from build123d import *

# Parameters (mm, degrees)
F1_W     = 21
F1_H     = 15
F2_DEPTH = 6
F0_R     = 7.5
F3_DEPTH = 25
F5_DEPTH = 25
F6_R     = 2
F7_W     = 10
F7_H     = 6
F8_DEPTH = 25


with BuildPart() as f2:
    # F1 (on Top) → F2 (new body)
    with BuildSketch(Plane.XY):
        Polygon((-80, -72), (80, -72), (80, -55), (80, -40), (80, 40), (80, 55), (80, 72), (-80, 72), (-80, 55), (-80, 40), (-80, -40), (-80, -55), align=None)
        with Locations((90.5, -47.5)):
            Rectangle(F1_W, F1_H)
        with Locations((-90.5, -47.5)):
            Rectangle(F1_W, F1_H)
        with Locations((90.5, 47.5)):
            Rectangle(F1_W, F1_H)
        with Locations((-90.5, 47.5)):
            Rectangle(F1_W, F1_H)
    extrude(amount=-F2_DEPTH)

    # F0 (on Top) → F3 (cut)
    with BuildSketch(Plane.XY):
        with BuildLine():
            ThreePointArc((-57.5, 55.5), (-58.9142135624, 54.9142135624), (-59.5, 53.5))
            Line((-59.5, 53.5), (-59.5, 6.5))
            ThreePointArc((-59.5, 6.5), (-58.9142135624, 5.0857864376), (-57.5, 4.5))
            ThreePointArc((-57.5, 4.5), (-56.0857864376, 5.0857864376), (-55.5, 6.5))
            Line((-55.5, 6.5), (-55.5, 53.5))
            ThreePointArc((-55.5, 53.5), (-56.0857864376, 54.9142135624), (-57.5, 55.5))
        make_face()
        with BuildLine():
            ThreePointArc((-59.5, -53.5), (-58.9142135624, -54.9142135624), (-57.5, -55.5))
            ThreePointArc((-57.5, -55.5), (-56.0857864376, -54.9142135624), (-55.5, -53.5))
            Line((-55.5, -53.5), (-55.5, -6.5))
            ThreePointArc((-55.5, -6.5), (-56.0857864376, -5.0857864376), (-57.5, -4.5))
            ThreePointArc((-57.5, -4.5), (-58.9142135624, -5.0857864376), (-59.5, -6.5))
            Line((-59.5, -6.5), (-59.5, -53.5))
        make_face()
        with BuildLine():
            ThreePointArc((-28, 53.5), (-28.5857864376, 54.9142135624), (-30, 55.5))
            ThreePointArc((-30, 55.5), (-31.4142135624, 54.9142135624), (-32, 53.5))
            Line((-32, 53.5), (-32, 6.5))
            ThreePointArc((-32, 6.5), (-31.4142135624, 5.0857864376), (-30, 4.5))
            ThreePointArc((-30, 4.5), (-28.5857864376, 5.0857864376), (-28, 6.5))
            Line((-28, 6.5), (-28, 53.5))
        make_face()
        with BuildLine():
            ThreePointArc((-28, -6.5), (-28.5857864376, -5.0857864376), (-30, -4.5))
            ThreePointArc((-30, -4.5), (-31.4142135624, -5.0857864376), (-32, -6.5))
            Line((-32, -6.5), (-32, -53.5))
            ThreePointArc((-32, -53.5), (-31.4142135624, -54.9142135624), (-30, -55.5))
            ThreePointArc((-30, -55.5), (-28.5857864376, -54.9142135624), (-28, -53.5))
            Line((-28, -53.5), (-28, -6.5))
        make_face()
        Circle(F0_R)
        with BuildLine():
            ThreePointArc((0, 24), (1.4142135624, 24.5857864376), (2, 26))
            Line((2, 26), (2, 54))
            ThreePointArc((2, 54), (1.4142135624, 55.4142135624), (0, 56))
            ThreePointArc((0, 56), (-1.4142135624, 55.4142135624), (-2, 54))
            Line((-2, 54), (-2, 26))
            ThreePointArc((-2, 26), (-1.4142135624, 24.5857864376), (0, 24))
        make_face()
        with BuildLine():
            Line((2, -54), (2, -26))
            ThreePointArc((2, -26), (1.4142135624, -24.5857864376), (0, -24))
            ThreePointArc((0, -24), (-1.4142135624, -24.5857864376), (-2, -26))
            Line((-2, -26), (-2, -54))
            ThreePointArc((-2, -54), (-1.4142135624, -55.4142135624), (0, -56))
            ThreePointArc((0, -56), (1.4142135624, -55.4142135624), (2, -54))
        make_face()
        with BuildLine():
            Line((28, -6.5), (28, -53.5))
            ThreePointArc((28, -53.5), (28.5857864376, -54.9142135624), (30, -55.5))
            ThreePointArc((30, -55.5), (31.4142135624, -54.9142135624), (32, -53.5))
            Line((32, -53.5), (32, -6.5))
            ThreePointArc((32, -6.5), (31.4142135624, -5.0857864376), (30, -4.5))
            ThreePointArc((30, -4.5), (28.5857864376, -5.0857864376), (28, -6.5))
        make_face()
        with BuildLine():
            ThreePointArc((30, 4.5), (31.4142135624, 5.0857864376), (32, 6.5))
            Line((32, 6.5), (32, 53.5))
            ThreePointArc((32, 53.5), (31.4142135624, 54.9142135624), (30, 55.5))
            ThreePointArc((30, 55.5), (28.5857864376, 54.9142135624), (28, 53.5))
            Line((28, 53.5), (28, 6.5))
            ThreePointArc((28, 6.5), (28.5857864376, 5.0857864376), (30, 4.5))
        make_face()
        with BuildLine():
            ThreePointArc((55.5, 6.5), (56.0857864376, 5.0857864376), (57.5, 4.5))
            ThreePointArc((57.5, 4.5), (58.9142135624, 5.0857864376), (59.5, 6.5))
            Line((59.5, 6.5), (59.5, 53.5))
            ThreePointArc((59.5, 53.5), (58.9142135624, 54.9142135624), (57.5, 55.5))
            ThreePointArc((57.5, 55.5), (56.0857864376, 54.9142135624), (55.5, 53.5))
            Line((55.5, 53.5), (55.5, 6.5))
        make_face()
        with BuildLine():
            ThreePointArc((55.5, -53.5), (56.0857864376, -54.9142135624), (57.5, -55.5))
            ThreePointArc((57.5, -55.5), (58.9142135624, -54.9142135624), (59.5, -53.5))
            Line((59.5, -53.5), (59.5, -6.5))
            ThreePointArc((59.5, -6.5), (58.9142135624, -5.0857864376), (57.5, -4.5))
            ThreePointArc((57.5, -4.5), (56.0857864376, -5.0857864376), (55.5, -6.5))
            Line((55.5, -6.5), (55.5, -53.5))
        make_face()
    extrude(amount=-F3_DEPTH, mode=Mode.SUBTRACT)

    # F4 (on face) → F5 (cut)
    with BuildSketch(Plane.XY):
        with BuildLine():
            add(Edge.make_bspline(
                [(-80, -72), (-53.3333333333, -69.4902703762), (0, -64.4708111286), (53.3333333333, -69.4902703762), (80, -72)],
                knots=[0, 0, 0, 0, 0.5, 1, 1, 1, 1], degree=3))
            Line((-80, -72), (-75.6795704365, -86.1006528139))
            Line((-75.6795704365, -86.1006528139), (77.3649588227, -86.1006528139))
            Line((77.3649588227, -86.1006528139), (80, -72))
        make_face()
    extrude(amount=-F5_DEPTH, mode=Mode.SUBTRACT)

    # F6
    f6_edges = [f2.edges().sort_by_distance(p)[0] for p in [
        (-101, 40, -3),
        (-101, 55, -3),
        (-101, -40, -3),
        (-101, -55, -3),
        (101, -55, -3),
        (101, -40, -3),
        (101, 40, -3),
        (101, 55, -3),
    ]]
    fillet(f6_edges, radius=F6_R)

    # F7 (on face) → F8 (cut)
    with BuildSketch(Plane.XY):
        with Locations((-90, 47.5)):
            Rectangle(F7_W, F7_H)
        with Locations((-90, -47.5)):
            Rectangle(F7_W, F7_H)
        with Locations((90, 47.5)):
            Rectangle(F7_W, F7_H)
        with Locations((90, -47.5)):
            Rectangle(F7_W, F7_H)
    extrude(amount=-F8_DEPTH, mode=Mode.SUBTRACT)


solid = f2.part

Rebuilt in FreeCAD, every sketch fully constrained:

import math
import FreeCAD as App
import Part
import Sketcher
from FreeCAD import Vector
Q = App.Units.Quantity


def edges_at(feature, points):
    """Names of the edges that pass closest to the given points."""
    edges = feature.Shape.Edges
    near = lambda p: min(range(len(edges)), key=lambda i: edges[i].distToShape(Part.Vertex(*p))[0])
    return sorted({f"Edge{near(p) + 1}" for p in points})

doc = App.newDocument("Part")
params = doc.addObject("Spreadsheet::Sheet", "Params")
for row, (alias, value) in enumerate([
    ("sketch1_width", "160 mm"),
    ("sketch1_width2", "21 mm"),
    ("sketch1_height", "17 mm"),
    ("sketch1_height2", "15 mm"),
    ("sketch1_height3", "80 mm"),
    ("pad1_length", "6 mm"),
    ("sketch2_diameter", "15 mm"),
    ("sketch2_radius", "2 mm"),
    ("sketch2_height", "47 mm"),
    ("sketch2_height2", "28 mm"),
    ("pocket1_length", "25 mm"),
    ("pocket2_length", "25 mm"),
    ("fillet_radius", "2 mm"),
    ("sketch4_width", "10 mm"),
    ("sketch4_height", "6 mm"),
    ("pocket3_length", "25 mm"),
], start=1):
    params.set(f"A{row}", alias)
    params.set(f"B{row}", "=" + value)
    params.setAlias(f"B{row}", alias)

body = doc.addObject("PartDesign::Body", "Body")

# Sketch on XY plane
sketch1 = body.newObject("Sketcher::SketchObject", "Sketch")
sketch1.AttachmentSupport = (doc.getObject("XY_Plane"), [""])
sketch1.MapMode = "FlatFace"
sketch1.addGeometry(Part.LineSegment(Vector(-80, -72, 0), Vector(80, -72, 0)), False)
sketch1.addGeometry(Part.LineSegment(Vector(80, -72, 0), Vector(80, -55, 0)), False)
sketch1.addGeometry(Part.LineSegment(Vector(80, -55, 0), Vector(101, -55, 0)), False)
sketch1.addGeometry(Part.LineSegment(Vector(101, -55, 0), Vector(101, -40, 0)), False)
sketch1.addGeometry(Part.LineSegment(Vector(101, -40, 0), Vector(80, -40, 0)), False)
sketch1.addGeometry(Part.LineSegment(Vector(80, -40, 0), Vector(80, 40, 0)), False)
sketch1.addGeometry(Part.LineSegment(Vector(80, 40, 0), Vector(101, 40, 0)), False)
sketch1.addGeometry(Part.LineSegment(Vector(101, 40, 0), Vector(101, 55, 0)), False)
sketch1.addGeometry(Part.LineSegment(Vector(101, 55, 0), Vector(80, 55, 0)), False)
sketch1.addGeometry(Part.LineSegment(Vector(80, 55, 0), Vector(80, 72, 0)), False)
sketch1.addGeometry(Part.LineSegment(Vector(80, 72, 0), Vector(-80, 72, 0)), False)
sketch1.addGeometry(Part.LineSegment(Vector(-80, 72, 0), Vector(-80, 55, 0)), False)
sketch1.addGeometry(Part.LineSegment(Vector(-80, 55, 0), Vector(-101, 55, 0)), False)
sketch1.addGeometry(Part.LineSegment(Vector(-101, 55, 0), Vector(-101, 40, 0)), False)
sketch1.addGeometry(Part.LineSegment(Vector(-101, 40, 0), Vector(-80, 40, 0)), False)
sketch1.addGeometry(Part.LineSegment(Vector(-80, 40, 0), Vector(-80, -40, 0)), False)
sketch1.addGeometry(Part.LineSegment(Vector(-80, -40, 0), Vector(-101, -40, 0)), False)
sketch1.addGeometry(Part.LineSegment(Vector(-101, -40, 0), Vector(-101, -55, 0)), False)
sketch1.addGeometry(Part.LineSegment(Vector(-101, -55, 0), Vector(-80, -55, 0)), False)
sketch1.addGeometry(Part.LineSegment(Vector(-80, -55, 0), Vector(-80, -72, 0)), False)
sketch1.addConstraint(Sketcher.Constraint("Coincident", 0, 2, 1, 1))
sketch1.addConstraint(Sketcher.Constraint("Coincident", 1, 2, 2, 1))
sketch1.addConstraint(Sketcher.Constraint("Coincident", 2, 2, 3, 1))
sketch1.addConstraint(Sketcher.Constraint("Coincident", 3, 2, 4, 1))
sketch1.addConstraint(Sketcher.Constraint("Coincident", 4, 2, 5, 1))
sketch1.addConstraint(Sketcher.Constraint("Coincident", 5, 2, 6, 1))
sketch1.addConstraint(Sketcher.Constraint("Coincident", 6, 2, 7, 1))
sketch1.addConstraint(Sketcher.Constraint("Coincident", 7, 2, 8, 1))
sketch1.addConstraint(Sketcher.Constraint("Coincident", 8, 2, 9, 1))
sketch1.addConstraint(Sketcher.Constraint("Coincident", 9, 2, 10, 1))
sketch1.addConstraint(Sketcher.Constraint("Coincident", 10, 2, 11, 1))
sketch1.addConstraint(Sketcher.Constraint("Coincident", 11, 2, 12, 1))
sketch1.addConstraint(Sketcher.Constraint("Coincident", 12, 2, 13, 1))
sketch1.addConstraint(Sketcher.Constraint("Coincident", 13, 2, 14, 1))
sketch1.addConstraint(Sketcher.Constraint("Coincident", 14, 2, 15, 1))
sketch1.addConstraint(Sketcher.Constraint("Coincident", 15, 2, 16, 1))
sketch1.addConstraint(Sketcher.Constraint("Coincident", 16, 2, 17, 1))
sketch1.addConstraint(Sketcher.Constraint("Coincident", 17, 2, 18, 1))
sketch1.addConstraint(Sketcher.Constraint("Coincident", 18, 2, 19, 1))
sketch1.addConstraint(Sketcher.Constraint("Coincident", 19, 2, 0, 1))
sketch1.addConstraint(Sketcher.Constraint("Horizontal", 0))
sketch1.addConstraint(Sketcher.Constraint("Vertical", 1))
sketch1.addConstraint(Sketcher.Constraint("Horizontal", 2))
sketch1.addConstraint(Sketcher.Constraint("Vertical", 3))
sketch1.addConstraint(Sketcher.Constraint("Horizontal", 4))
sketch1.addConstraint(Sketcher.Constraint("Vertical", 5))
sketch1.addConstraint(Sketcher.Constraint("Horizontal", 6))
sketch1.addConstraint(Sketcher.Constraint("Vertical", 7))
sketch1.addConstraint(Sketcher.Constraint("Horizontal", 8))
sketch1.addConstraint(Sketcher.Constraint("Vertical", 9))
sketch1.addConstraint(Sketcher.Constraint("Horizontal", 10))
sketch1.addConstraint(Sketcher.Constraint("Vertical", 11))
sketch1.addConstraint(Sketcher.Constraint("Horizontal", 12))
sketch1.addConstraint(Sketcher.Constraint("Vertical", 13))
sketch1.addConstraint(Sketcher.Constraint("Horizontal", 14))
sketch1.addConstraint(Sketcher.Constraint("Vertical", 15))
sketch1.addConstraint(Sketcher.Constraint("Horizontal", 16))
sketch1.addConstraint(Sketcher.Constraint("Vertical", 17))
sketch1.addConstraint(Sketcher.Constraint("Horizontal", 18))
sketch1.addConstraint(Sketcher.Constraint("Vertical", 19))
sketch1.addConstraint(Sketcher.Constraint("Symmetric", 0, 2, 10, 2, -1, 1))
sketch1.addConstraint(Sketcher.Constraint("Symmetric", 2, 2, 12, 2, -1, 1))
sketch1.addConstraint(Sketcher.Constraint("Symmetric", 4, 2, 14, 2, -1, 1))
sketch1.addConstraint(Sketcher.Constraint("Symmetric", 6, 2, 16, 2, -1, 1))
sketch1.addConstraint(Sketcher.Constraint("Symmetric", 8, 2, 18, 2, -1, 1))
sketch1.addConstraint(Sketcher.Constraint("Symmetric", 8, 2, 11, 2, -2))
sketch1.addConstraint(Sketcher.Constraint("Symmetric", 6, 2, 13, 2, -2))
sketch1.addConstraint(Sketcher.Constraint("Vertical", 1, 2, 4, 2))
sketch1.addConstraint(Sketcher.Constraint("DistanceX", 0, 1, 0, 2, Q("160 mm")))
sketch1.addConstraint(Sketcher.Constraint("DistanceX", 2, 1, 2, 2, Q("21 mm")))
sketch1.addConstraint(Sketcher.Constraint("DistanceY", 1, 1, 1, 2, Q("17 mm")))
sketch1.addConstraint(Sketcher.Constraint("DistanceY", 3, 1, 3, 2, Q("15 mm")))
sketch1.addConstraint(Sketcher.Constraint("DistanceY", 5, 1, 5, 2, Q("80 mm")))
sketch1.setExpression("Constraints[48]", "Params.sketch1_width")
sketch1.setExpression("Constraints[49]", "Params.sketch1_width2")
sketch1.setExpression("Constraints[50]", "Params.sketch1_height")
sketch1.setExpression("Constraints[51]", "Params.sketch1_height2")
sketch1.setExpression("Constraints[52]", "Params.sketch1_height3")
pad1 = body.newObject("PartDesign::Pad", "Pad")
pad1.Profile = sketch1
pad1.setExpression("Length", "Params.pad1_length")
pad1.Reversed = True

# Sketch on XY plane
sketch2 = body.newObject("Sketcher::SketchObject", "Sketch001")
sketch2.AttachmentSupport = (doc.getObject("XY_Plane"), [""])
sketch2.MapMode = "FlatFace"
sketch2.addGeometry(Part.ArcOfCircle(Part.Circle(Vector(-57.5, 53.5, 0), Vector(0, 0, 1), 2), math.radians(90), math.radians(180)), False)
sketch2.addGeometry(Part.LineSegment(Vector(-59.5, 53.5, 0), Vector(-59.5, 6.5, 0)), False)
sketch2.addGeometry(Part.ArcOfCircle(Part.Circle(Vector(-57.5, 6.5, 0), Vector(0, 0, 1), 2), math.radians(180), math.radians(270)), False)
sketch2.addGeometry(Part.ArcOfCircle(Part.Circle(Vector(-57.5, 6.5, 0), Vector(0, 0, 1), 2), math.radians(-90), math.radians(0)), False)
sketch2.addGeometry(Part.LineSegment(Vector(-55.5, 6.5, 0), Vector(-55.5, 53.5, 0)), False)
sketch2.addGeometry(Part.ArcOfCircle(Part.Circle(Vector(-57.5, 53.5, 0), Vector(0, 0, 1), 2), math.radians(0), math.radians(90)), False)
sketch2.addGeometry(Part.ArcOfCircle(Part.Circle(Vector(-57.5, -53.5, 0), Vector(0, 0, 1), 2), math.radians(180), math.radians(270)), False)
sketch2.addGeometry(Part.ArcOfCircle(Part.Circle(Vector(-57.5, -53.5, 0), Vector(0, 0, 1), 2), math.radians(-90), math.radians(0)), False)
sketch2.addGeometry(Part.LineSegment(Vector(-55.5, -53.5, 0), Vector(-55.5, -6.5, 0)), False)
sketch2.addGeometry(Part.ArcOfCircle(Part.Circle(Vector(-57.5, -6.5, 0), Vector(0, 0, 1), 2), math.radians(0), math.radians(90)), False)
sketch2.addGeometry(Part.ArcOfCircle(Part.Circle(Vector(-57.5, -6.5, 0), Vector(0, 0, 1), 2), math.radians(90), math.radians(180)), False)
sketch2.addGeometry(Part.LineSegment(Vector(-59.5, -6.5, 0), Vector(-59.5, -53.5, 0)), False)
sketch2.addGeometry(Part.ArcOfCircle(Part.Circle(Vector(-30, 53.5, 0), Vector(0, 0, 1), 2), math.radians(0), math.radians(90)), False)
sketch2.addGeometry(Part.ArcOfCircle(Part.Circle(Vector(-30, 53.5, 0), Vector(0, 0, 1), 2), math.radians(90), math.radians(180)), False)
sketch2.addGeometry(Part.LineSegment(Vector(-32, 53.5, 0), Vector(-32, 6.5, 0)), False)
sketch2.addGeometry(Part.ArcOfCircle(Part.Circle(Vector(-30, 6.5, 0), Vector(0, 0, 1), 2), math.radians(180), math.radians(270)), False)
sketch2.addGeometry(Part.ArcOfCircle(Part.Circle(Vector(-30, 6.5, 0), Vector(0, 0, 1), 2), math.radians(-90), math.radians(0)), False)
sketch2.addGeometry(Part.LineSegment(Vector(-28, 6.5, 0), Vector(-28, 53.5, 0)), False)
sketch2.addGeometry(Part.ArcOfCircle(Part.Circle(Vector(-30, -6.5, 0), Vector(0, 0, 1), 2), math.radians(0), math.radians(90)), False)
sketch2.addGeometry(Part.ArcOfCircle(Part.Circle(Vector(-30, -6.5, 0), Vector(0, 0, 1), 2), math.radians(90), math.radians(180)), False)
sketch2.addGeometry(Part.LineSegment(Vector(-32, -6.5, 0), Vector(-32, -53.5, 0)), False)
sketch2.addGeometry(Part.ArcOfCircle(Part.Circle(Vector(-30, -53.5, 0), Vector(0, 0, 1), 2), math.radians(180), math.radians(270)), False)
sketch2.addGeometry(Part.ArcOfCircle(Part.Circle(Vector(-30, -53.5, 0), Vector(0, 0, 1), 2), math.radians(-90), math.radians(0)), False)
sketch2.addGeometry(Part.LineSegment(Vector(-28, -53.5, 0), Vector(-28, -6.5, 0)), False)
sketch2.addGeometry(Part.Circle(Vector(0, 0, 0), Vector(0, 0, 1), 7.5), False)
sketch2.addGeometry(Part.ArcOfCircle(Part.Circle(Vector(0, 26, 0), Vector(0, 0, 1), 2), math.radians(-90), math.radians(0)), False)
sketch2.addGeometry(Part.LineSegment(Vector(2, 26, 0), Vector(2, 54, 0)), False)
sketch2.addGeometry(Part.ArcOfCircle(Part.Circle(Vector(0, 54, 0), Vector(0, 0, 1), 2), math.radians(0), math.radians(90)), False)
sketch2.addGeometry(Part.ArcOfCircle(Part.Circle(Vector(0, 54, 0), Vector(0, 0, 1), 2), math.radians(90), math.radians(180)), False)
sketch2.addGeometry(Part.LineSegment(Vector(-2, 54, 0), Vector(-2, 26, 0)), False)
sketch2.addGeometry(Part.ArcOfCircle(Part.Circle(Vector(0, 26, 0), Vector(0, 0, 1), 2), math.radians(180), math.radians(270)), False)
sketch2.addGeometry(Part.LineSegment(Vector(2, -54, 0), Vector(2, -26, 0)), False)
sketch2.addGeometry(Part.ArcOfCircle(Part.Circle(Vector(0, -26, 0), Vector(0, 0, 1), 2), math.radians(0), math.radians(90)), False)
sketch2.addGeometry(Part.ArcOfCircle(Part.Circle(Vector(0, -26, 0), Vector(0, 0, 1), 2), math.radians(90), math.radians(180)), False)
sketch2.addGeometry(Part.LineSegment(Vector(-2, -26, 0), Vector(-2, -54, 0)), False)
sketch2.addGeometry(Part.ArcOfCircle(Part.Circle(Vector(0, -54, 0), Vector(0, 0, 1), 2), math.radians(180), math.radians(270)), False)
sketch2.addGeometry(Part.ArcOfCircle(Part.Circle(Vector(0, -54, 0), Vector(0, 0, 1), 2), math.radians(-90), math.radians(0)), False)
sketch2.addGeometry(Part.LineSegment(Vector(28, -6.5, 0), Vector(28, -53.5, 0)), False)
sketch2.addGeometry(Part.ArcOfCircle(Part.Circle(Vector(30, -53.5, 0), Vector(0, 0, 1), 2), math.radians(180), math.radians(270)), False)
sketch2.addGeometry(Part.ArcOfCircle(Part.Circle(Vector(30, -53.5, 0), Vector(0, 0, 1), 2), math.radians(-90), math.radians(0)), False)
sketch2.addGeometry(Part.LineSegment(Vector(32, -53.5, 0), Vector(32, -6.5, 0)), False)
sketch2.addGeometry(Part.ArcOfCircle(Part.Circle(Vector(30, -6.5, 0), Vector(0, 0, 1), 2), math.radians(0), math.radians(90)), False)
sketch2.addGeometry(Part.ArcOfCircle(Part.Circle(Vector(30, -6.5, 0), Vector(0, 0, 1), 2), math.radians(90), math.radians(180)), False)
sketch2.addGeometry(Part.ArcOfCircle(Part.Circle(Vector(30, 6.5, 0), Vector(0, 0, 1), 2), math.radians(-90), math.radians(0)), False)
sketch2.addGeometry(Part.LineSegment(Vector(32, 6.5, 0), Vector(32, 53.5, 0)), False)
sketch2.addGeometry(Part.ArcOfCircle(Part.Circle(Vector(30, 53.5, 0), Vector(0, 0, 1), 2), math.radians(0), math.radians(90)), False)
sketch2.addGeometry(Part.ArcOfCircle(Part.Circle(Vector(30, 53.5, 0), Vector(0, 0, 1), 2), math.radians(90), math.radians(180)), False)
sketch2.addGeometry(Part.LineSegment(Vector(28, 53.5, 0), Vector(28, 6.5, 0)), False)
sketch2.addGeometry(Part.ArcOfCircle(Part.Circle(Vector(30, 6.5, 0), Vector(0, 0, 1), 2), math.radians(180), math.radians(270)), False)
sketch2.addGeometry(Part.ArcOfCircle(Part.Circle(Vector(57.5, 6.5, 0), Vector(0, 0, 1), 2), math.radians(180), math.radians(270)), False)
sketch2.addGeometry(Part.ArcOfCircle(Part.Circle(Vector(57.5, 6.5, 0), Vector(0, 0, 1), 2), math.radians(-90), math.radians(0)), False)
sketch2.addGeometry(Part.LineSegment(Vector(59.5, 6.5, 0), Vector(59.5, 53.5, 0)), False)
sketch2.addGeometry(Part.ArcOfCircle(Part.Circle(Vector(57.5, 53.5, 0), Vector(0, 0, 1), 2), math.radians(0), math.radians(90)), False)
sketch2.addGeometry(Part.ArcOfCircle(Part.Circle(Vector(57.5, 53.5, 0), Vector(0, 0, 1), 2), math.radians(90), math.radians(180)), False)
sketch2.addGeometry(Part.LineSegment(Vector(55.5, 53.5, 0), Vector(55.5, 6.5, 0)), False)
sketch2.addGeometry(Part.ArcOfCircle(Part.Circle(Vector(57.5, -53.5, 0), Vector(0, 0, 1), 2), math.radians(180), math.radians(270)), False)
sketch2.addGeometry(Part.ArcOfCircle(Part.Circle(Vector(57.5, -53.5, 0), Vector(0, 0, 1), 2), math.radians(-90), math.radians(0)), False)
sketch2.addGeometry(Part.LineSegment(Vector(59.5, -53.5, 0), Vector(59.5, -6.5, 0)), False)
sketch2.addGeometry(Part.ArcOfCircle(Part.Circle(Vector(57.5, -6.5, 0), Vector(0, 0, 1), 2), math.radians(0), math.radians(90)), False)
sketch2.addGeometry(Part.ArcOfCircle(Part.Circle(Vector(57.5, -6.5, 0), Vector(0, 0, 1), 2), math.radians(90), math.radians(180)), False)
sketch2.addGeometry(Part.LineSegment(Vector(55.5, -6.5, 0), Vector(55.5, -53.5, 0)), False)
sketch2.addConstraint(Sketcher.Constraint("Tangent", 0, 2, 1, 1))
sketch2.addConstraint(Sketcher.Constraint("Tangent", 1, 2, 2, 1))
sketch2.addConstraint(Sketcher.Constraint("Tangent", 2, 2, 3, 1))
sketch2.addConstraint(Sketcher.Constraint("Tangent", 3, 2, 4, 1))
sketch2.addConstraint(Sketcher.Constraint("Tangent", 4, 2, 5, 1))
sketch2.addConstraint(Sketcher.Constraint("Tangent", 5, 2, 0, 1))
sketch2.addConstraint(Sketcher.Constraint("Tangent", 6, 2, 7, 1))
sketch2.addConstraint(Sketcher.Constraint("Tangent", 7, 2, 8, 1))
sketch2.addConstraint(Sketcher.Constraint("Tangent", 8, 2, 9, 1))
sketch2.addConstraint(Sketcher.Constraint("Tangent", 9, 2, 10, 1))
sketch2.addConstraint(Sketcher.Constraint("Tangent", 10, 2, 11, 1))
sketch2.addConstraint(Sketcher.Constraint("Tangent", 11, 2, 6, 1))
sketch2.addConstraint(Sketcher.Constraint("Tangent", 12, 2, 13, 1))
sketch2.addConstraint(Sketcher.Constraint("Tangent", 13, 2, 14, 1))
sketch2.addConstraint(Sketcher.Constraint("Tangent", 14, 2, 15, 1))
sketch2.addConstraint(Sketcher.Constraint("Tangent", 15, 2, 16, 1))
sketch2.addConstraint(Sketcher.Constraint("Tangent", 16, 2, 17, 1))
sketch2.addConstraint(Sketcher.Constraint("Tangent", 17, 2, 12, 1))
sketch2.addConstraint(Sketcher.Constraint("Tangent", 18, 2, 19, 1))
sketch2.addConstraint(Sketcher.Constraint("Tangent", 19, 2, 20, 1))
sketch2.addConstraint(Sketcher.Constraint("Tangent", 20, 2, 21, 1))
sketch2.addConstraint(Sketcher.Constraint("Tangent", 21, 2, 22, 1))
sketch2.addConstraint(Sketcher.Constraint("Tangent", 22, 2, 23, 1))
sketch2.addConstraint(Sketcher.Constraint("Tangent", 23, 2, 18, 1))
sketch2.addConstraint(Sketcher.Constraint("Tangent", 25, 2, 26, 1))
sketch2.addConstraint(Sketcher.Constraint("Tangent", 26, 2, 27, 1))
sketch2.addConstraint(Sketcher.Constraint("Tangent", 27, 2, 28, 1))
sketch2.addConstraint(Sketcher.Constraint("Tangent", 28, 2, 29, 1))
sketch2.addConstraint(Sketcher.Constraint("Tangent", 29, 2, 30, 1))
sketch2.addConstraint(Sketcher.Constraint("Tangent", 30, 2, 25, 1))
sketch2.addConstraint(Sketcher.Constraint("Tangent", 31, 2, 32, 1))
sketch2.addConstraint(Sketcher.Constraint("Tangent", 32, 2, 33, 1))
sketch2.addConstraint(Sketcher.Constraint("Tangent", 33, 2, 34, 1))
sketch2.addConstraint(Sketcher.Constraint("Tangent", 34, 2, 35, 1))
sketch2.addConstraint(Sketcher.Constraint("Tangent", 35, 2, 36, 1))
sketch2.addConstraint(Sketcher.Constraint("Tangent", 36, 2, 31, 1))
sketch2.addConstraint(Sketcher.Constraint("Tangent", 37, 2, 38, 1))
sketch2.addConstraint(Sketcher.Constraint("Tangent", 38, 2, 39, 1))
sketch2.addConstraint(Sketcher.Constraint("Tangent", 39, 2, 40, 1))
sketch2.addConstraint(Sketcher.Constraint("Tangent", 40, 2, 41, 1))
sketch2.addConstraint(Sketcher.Constraint("Tangent", 41, 2, 42, 1))
sketch2.addConstraint(Sketcher.Constraint("Tangent", 42, 2, 37, 1))
sketch2.addConstraint(Sketcher.Constraint("Tangent", 43, 2, 44, 1))
sketch2.addConstraint(Sketcher.Constraint("Tangent", 44, 2, 45, 1))
sketch2.addConstraint(Sketcher.Constraint("Tangent", 45, 2, 46, 1))
sketch2.addConstraint(Sketcher.Constraint("Tangent", 46, 2, 47, 1))
sketch2.addConstraint(Sketcher.Constraint("Tangent", 47, 2, 48, 1))
sketch2.addConstraint(Sketcher.Constraint("Tangent", 48, 2, 43, 1))
sketch2.addConstraint(Sketcher.Constraint("Tangent", 49, 2, 50, 1))
sketch2.addConstraint(Sketcher.Constraint("Tangent", 50, 2, 51, 1))
sketch2.addConstraint(Sketcher.Constraint("Tangent", 51, 2, 52, 1))
sketch2.addConstraint(Sketcher.Constraint("Tangent", 52, 2, 53, 1))
sketch2.addConstraint(Sketcher.Constraint("Tangent", 53, 2, 54, 1))
sketch2.addConstraint(Sketcher.Constraint("Tangent", 54, 2, 49, 1))
sketch2.addConstraint(Sketcher.Constraint("Tangent", 55, 2, 56, 1))
sketch2.addConstraint(Sketcher.Constraint("Tangent", 56, 2, 57, 1))
sketch2.addConstraint(Sketcher.Constraint("Tangent", 57, 2, 58, 1))
sketch2.addConstraint(Sketcher.Constraint("Tangent", 58, 2, 59, 1))
sketch2.addConstraint(Sketcher.Constraint("Tangent", 59, 2, 60, 1))
sketch2.addConstraint(Sketcher.Constraint("Tangent", 60, 2, 55, 1))
sketch2.addConstraint(Sketcher.Constraint("Vertical", 1))
sketch2.addConstraint(Sketcher.Constraint("Vertical", 4))
sketch2.addConstraint(Sketcher.Constraint("Vertical", 8))
sketch2.addConstraint(Sketcher.Constraint("Vertical", 11))
sketch2.addConstraint(Sketcher.Constraint("Vertical", 14))
sketch2.addConstraint(Sketcher.Constraint("Vertical", 17))
sketch2.addConstraint(Sketcher.Constraint("Vertical", 20))
sketch2.addConstraint(Sketcher.Constraint("Vertical", 23))
sketch2.addConstraint(Sketcher.Constraint("Vertical", 26))
sketch2.addConstraint(Sketcher.Constraint("Vertical", 29))
sketch2.addConstraint(Sketcher.Constraint("Vertical", 31))
sketch2.addConstraint(Sketcher.Constraint("Vertical", 34))
sketch2.addConstraint(Sketcher.Constraint("Vertical", 37))
sketch2.addConstraint(Sketcher.Constraint("Vertical", 40))
sketch2.addConstraint(Sketcher.Constraint("Vertical", 44))
sketch2.addConstraint(Sketcher.Constraint("Vertical", 47))
sketch2.addConstraint(Sketcher.Constraint("Vertical", 51))
sketch2.addConstraint(Sketcher.Constraint("Vertical", 54))
sketch2.addConstraint(Sketcher.Constraint("Vertical", 57))
sketch2.addConstraint(Sketcher.Constraint("Vertical", 60))
sketch2.addConstraint(Sketcher.Constraint("Coincident", 24, 3, -1, 1))
sketch2.addConstraint(Sketcher.Constraint("Equal", 0, 2))
sketch2.addConstraint(Sketcher.Constraint("Equal", 2, 3))
sketch2.addConstraint(Sketcher.Constraint("Equal", 5, 6))
sketch2.addConstraint(Sketcher.Constraint("Equal", 6, 7))
sketch2.addConstraint(Sketcher.Constraint("Equal", 7, 9))
sketch2.addConstraint(Sketcher.Constraint("Equal", 10, 12))
sketch2.addConstraint(Sketcher.Constraint("Equal", 12, 13))
sketch2.addConstraint(Sketcher.Constraint("Equal", 13, 15))
sketch2.addConstraint(Sketcher.Constraint("Equal", 16, 18))
sketch2.addConstraint(Sketcher.Constraint("Equal", 18, 19))
sketch2.addConstraint(Sketcher.Constraint("Equal", 19, 21))
sketch2.addConstraint(Sketcher.Constraint("Equal", 22, 25))
sketch2.addConstraint(Sketcher.Constraint("Equal", 25, 27))
sketch2.addConstraint(Sketcher.Constraint("Equal", 27, 28))
sketch2.addConstraint(Sketcher.Constraint("Equal", 30, 32))
sketch2.addConstraint(Sketcher.Constraint("Equal", 32, 33))
sketch2.addConstraint(Sketcher.Constraint("Equal", 33, 35))
sketch2.addConstraint(Sketcher.Constraint("Equal", 36, 38))
sketch2.addConstraint(Sketcher.Constraint("Equal", 38, 39))
sketch2.addConstraint(Sketcher.Constraint("Equal", 39, 41))
sketch2.addConstraint(Sketcher.Constraint("Equal", 42, 43))
sketch2.addConstraint(Sketcher.Constraint("Equal", 43, 45))
sketch2.addConstraint(Sketcher.Constraint("Equal", 45, 46))
sketch2.addConstraint(Sketcher.Constraint("Equal", 48, 49))
sketch2.addConstraint(Sketcher.Constraint("Equal", 49, 50))
sketch2.addConstraint(Sketcher.Constraint("Equal", 50, 52))
sketch2.addConstraint(Sketcher.Constraint("Equal", 53, 55))
sketch2.addConstraint(Sketcher.Constraint("Equal", 55, 56))
sketch2.addConstraint(Sketcher.Constraint("Equal", 56, 58))
sketch2.addConstraint(Sketcher.Constraint("Symmetric", 25, 3, 32, 3, -1, 1))
sketch2.addConstraint(Sketcher.Constraint("Symmetric", 12, 3, 38, 3, -1, 1))
sketch2.addConstraint(Sketcher.Constraint("Symmetric", 18, 3, 43, 3, -1, 1))
sketch2.addConstraint(Sketcher.Constraint("Symmetric", 9, 3, 49, 3, -1, 1))
sketch2.addConstraint(Sketcher.Constraint("Symmetric", 0, 3, 55, 3, -1, 1))
sketch2.addConstraint(Sketcher.Constraint("Symmetric", 27, 2, 35, 2, -1, 1))
sketch2.addConstraint(Sketcher.Constraint("Symmetric", 15, 2, 41, 2, -1, 1))
sketch2.addConstraint(Sketcher.Constraint("Symmetric", 21, 2, 45, 2, -1, 1))
sketch2.addConstraint(Sketcher.Constraint("Symmetric", 6, 2, 52, 2, -1, 1))
sketch2.addConstraint(Sketcher.Constraint("Symmetric", 2, 2, 58, 2, -1, 1))
sketch2.addConstraint(Sketcher.Constraint("Symmetric", 21, 3, 38, 3, -2))
sketch2.addConstraint(Sketcher.Constraint("Symmetric", 2, 3, 49, 3, -2))
sketch2.addConstraint(Sketcher.Constraint("Symmetric", 18, 2, 41, 2, -2))
sketch2.addConstraint(Sketcher.Constraint("Symmetric", 5, 2, 52, 2, -2))
sketch2.addConstraint(Sketcher.Constraint("PointOnObject", 25, 3, -2))
sketch2.addConstraint(Sketcher.Constraint("PointOnObject", 27, 2, -2))
sketch2.addConstraint(Sketcher.Constraint("PointOnObject", 30, 2, -2))
sketch2.addConstraint(Sketcher.Constraint("PointOnObject", 32, 2, -2))
sketch2.addConstraint(Sketcher.Constraint("Horizontal", 5, 3, 12, 3))
sketch2.addConstraint(Sketcher.Constraint("Horizontal", 3, 3, 15, 3))
sketch2.addConstraint(Sketcher.Constraint("Vertical", 10, 3, 2, 2))
sketch2.addConstraint(Sketcher.Constraint("Vertical", 2, 2, 5, 2))
sketch2.addConstraint(Sketcher.Constraint("Vertical", 6, 2, 9, 2))
sketch2.addConstraint(Sketcher.Constraint("Vertical", 22, 3, 12, 2))
sketch2.addConstraint(Sketcher.Constraint("Vertical", 12, 2, 15, 2))
sketch2.addConstraint(Sketcher.Constraint("Vertical", 18, 2, 21, 2))
sketch2.addConstraint(Sketcher.Constraint("Vertical", 48, 3, 38, 2))
sketch2.addConstraint(Sketcher.Constraint("Vertical", 45, 2, 48, 2))
sketch2.addConstraint(Sketcher.Constraint("Vertical", 59, 3, 49, 2))
sketch2.addConstraint(Sketcher.Constraint("Vertical", 52, 2, 55, 2))
sketch2.addConstraint(Sketcher.Constraint("Diameter", 24, Q("15 mm")))
sketch2.addConstraint(Sketcher.Constraint("Radius", 0, Q("2 mm")))
sketch2.addConstraint(Sketcher.Constraint("DistanceY", 1, 2, 1, 1, Q("47 mm")))
sketch2.addConstraint(Sketcher.Constraint("DistanceY", 26, 1, 26, 2, Q("28 mm")))
sketch2.addConstraint(Sketcher.Constraint("DistanceX", 12, 3, -1, 1, Q("30 mm")))
sketch2.addConstraint(Sketcher.Constraint("DistanceY", -1, 1, 25, 3, Q("26 mm")))
sketch2.addConstraint(Sketcher.Constraint("DistanceX", 0, 3, -1, 1, Q("57.5 mm")))
sketch2.addConstraint(Sketcher.Constraint("DistanceY", -1, 1, 0, 3, Q("53.5 mm")))
sketch2.setExpression("Constraints[140]", "Params.sketch2_diameter")
sketch2.setExpression("Constraints[141]", "Params.sketch2_radius")
sketch2.setExpression("Constraints[142]", "Params.sketch2_height")
sketch2.setExpression("Constraints[143]", "Params.sketch2_height2")
pocket1 = body.newObject("PartDesign::Pocket", "Pocket")
pocket1.Profile = sketch2
pocket1.setExpression("Length", "Params.pocket1_length")

# Sketch on XY plane
sketch3 = body.newObject("Sketcher::SketchObject", "Sketch002")
sketch3.AttachmentSupport = (doc.getObject("XY_Plane"), [""])
sketch3.MapMode = "FlatFace"
sketch3.addGeometry(Part.BSplineCurve([Vector(-80, -72, 0), Vector(-53.333333, -69.49027, 0), Vector(0, -64.470811, 0), Vector(53.333333, -69.49027, 0), Vector(80, -72, 0)], [4, 1, 4], [0, 0.5, 1], False, 3, [1, 1, 1, 1, 1], False), False)
sketch3.addGeometry(Part.LineSegment(Vector(-80, -72, 0), Vector(-75.67957, -86.100653, 0)), False)
sketch3.addGeometry(Part.LineSegment(Vector(-75.67957, -86.100653, 0), Vector(77.364959, -86.100653, 0)), False)
sketch3.addGeometry(Part.LineSegment(Vector(77.364959, -86.100653, 0), Vector(80, -72, 0)), False)
sketch3.addConstraint(Sketcher.Constraint("Block", 0))
sketch3.addConstraint(Sketcher.Constraint("Coincident", 0, 1, 1, 1))
sketch3.addConstraint(Sketcher.Constraint("Coincident", 1, 2, 2, 1))
sketch3.addConstraint(Sketcher.Constraint("Coincident", 2, 2, 3, 1))
sketch3.addConstraint(Sketcher.Constraint("Coincident", 3, 2, 0, 2))
sketch3.addConstraint(Sketcher.Constraint("Horizontal", 2))
sketch3.addConstraint(Sketcher.Constraint("DistanceX", 2, 1, 2, 2, Q("153.044529 mm")))
sketch3.addConstraint(Sketcher.Constraint("Distance", 3, Q("14.34475 mm")))
sketch3.addConstraint(Sketcher.Constraint("DistanceX", 1, 2, -1, 1, Q("75.67957 mm")))
pocket2 = body.newObject("PartDesign::Pocket", "Pocket001")
pocket2.Profile = sketch3
pocket2.setExpression("Length", "Params.pocket2_length")
doc.recompute()

fillet = body.newObject("PartDesign::Fillet", "Fillet")
fillet.Base = (pocket2, edges_at(pocket2, [
    (-101, 40, -3),
    (-101, 55, -3),
    (-101, -40, -3),
    (-101, -55, -3),
    (101, -55, -3),
    (101, -40, -3),
    (101, 40, -3),
    (101, 55, -3),
]))
fillet.setExpression("Radius", "Params.fillet_radius")

# Sketch on XY plane
sketch4 = body.newObject("Sketcher::SketchObject", "Sketch003")
sketch4.AttachmentSupport = (doc.getObject("XY_Plane"), [""])
sketch4.MapMode = "FlatFace"
sketch4.addGeometry(Part.LineSegment(Vector(-95, 50, 0), Vector(-95, 44, 0)), False)
sketch4.addGeometry(Part.LineSegment(Vector(-95, 44, 0), Vector(-85, 44, 0)), False)
sketch4.addGeometry(Part.LineSegment(Vector(-85, 44, 0), Vector(-85, 50, 0)), False)
sketch4.addGeometry(Part.LineSegment(Vector(-85, 50, 0), Vector(-95, 50, 0)), False)
sketch4.addGeometry(Part.LineSegment(Vector(-95, -44, 0), Vector(-95, -50, 0)), False)
sketch4.addGeometry(Part.LineSegment(Vector(-95, -50, 0), Vector(-85, -50, 0)), False)
sketch4.addGeometry(Part.LineSegment(Vector(-85, -50, 0), Vector(-85, -44, 0)), False)
sketch4.addGeometry(Part.LineSegment(Vector(-85, -44, 0), Vector(-95, -44, 0)), False)
sketch4.addGeometry(Part.LineSegment(Vector(85, 50, 0), Vector(85, 44, 0)), False)
sketch4.addGeometry(Part.LineSegment(Vector(85, 44, 0), Vector(95, 44, 0)), False)
sketch4.addGeometry(Part.LineSegment(Vector(95, 44, 0), Vector(95, 50, 0)), False)
sketch4.addGeometry(Part.LineSegment(Vector(95, 50, 0), Vector(85, 50, 0)), False)
sketch4.addGeometry(Part.LineSegment(Vector(85, -44, 0), Vector(85, -50, 0)), False)
sketch4.addGeometry(Part.LineSegment(Vector(85, -50, 0), Vector(95, -50, 0)), False)
sketch4.addGeometry(Part.LineSegment(Vector(95, -50, 0), Vector(95, -44, 0)), False)
sketch4.addGeometry(Part.LineSegment(Vector(95, -44, 0), Vector(85, -44, 0)), False)
sketch4.addConstraint(Sketcher.Constraint("Coincident", 0, 2, 1, 1))
sketch4.addConstraint(Sketcher.Constraint("Coincident", 1, 2, 2, 1))
sketch4.addConstraint(Sketcher.Constraint("Coincident", 2, 2, 3, 1))
sketch4.addConstraint(Sketcher.Constraint("Coincident", 3, 2, 0, 1))
sketch4.addConstraint(Sketcher.Constraint("Coincident", 4, 2, 5, 1))
sketch4.addConstraint(Sketcher.Constraint("Coincident", 5, 2, 6, 1))
sketch4.addConstraint(Sketcher.Constraint("Coincident", 6, 2, 7, 1))
sketch4.addConstraint(Sketcher.Constraint("Coincident", 7, 2, 4, 1))
sketch4.addConstraint(Sketcher.Constraint("Coincident", 8, 2, 9, 1))
sketch4.addConstraint(Sketcher.Constraint("Coincident", 9, 2, 10, 1))
sketch4.addConstraint(Sketcher.Constraint("Coincident", 10, 2, 11, 1))
sketch4.addConstraint(Sketcher.Constraint("Coincident", 11, 2, 8, 1))
sketch4.addConstraint(Sketcher.Constraint("Coincident", 12, 2, 13, 1))
sketch4.addConstraint(Sketcher.Constraint("Coincident", 13, 2, 14, 1))
sketch4.addConstraint(Sketcher.Constraint("Coincident", 14, 2, 15, 1))
sketch4.addConstraint(Sketcher.Constraint("Coincident", 15, 2, 12, 1))
sketch4.addConstraint(Sketcher.Constraint("Vertical", 0))
sketch4.addConstraint(Sketcher.Constraint("Horizontal", 1))
sketch4.addConstraint(Sketcher.Constraint("Vertical", 2))
sketch4.addConstraint(Sketcher.Constraint("Horizontal", 3))
sketch4.addConstraint(Sketcher.Constraint("Vertical", 4))
sketch4.addConstraint(Sketcher.Constraint("Horizontal", 5))
sketch4.addConstraint(Sketcher.Constraint("Vertical", 6))
sketch4.addConstraint(Sketcher.Constraint("Horizontal", 7))
sketch4.addConstraint(Sketcher.Constraint("Vertical", 8))
sketch4.addConstraint(Sketcher.Constraint("Horizontal", 9))
sketch4.addConstraint(Sketcher.Constraint("Vertical", 10))
sketch4.addConstraint(Sketcher.Constraint("Horizontal", 11))
sketch4.addConstraint(Sketcher.Constraint("Vertical", 12))
sketch4.addConstraint(Sketcher.Constraint("Horizontal", 13))
sketch4.addConstraint(Sketcher.Constraint("Vertical", 14))
sketch4.addConstraint(Sketcher.Constraint("Horizontal", 15))
sketch4.addConstraint(Sketcher.Constraint("Symmetric", 6, 2, 8, 2, -1, 1))
sketch4.addConstraint(Sketcher.Constraint("Symmetric", 4, 2, 10, 2, -1, 1))
sketch4.addConstraint(Sketcher.Constraint("Symmetric", 2, 2, 12, 2, -1, 1))
sketch4.addConstraint(Sketcher.Constraint("Symmetric", 0, 2, 14, 2, -1, 1))
sketch4.addConstraint(Sketcher.Constraint("Symmetric", 1, 2, 8, 2, -2))
sketch4.addConstraint(Sketcher.Constraint("Symmetric", 3, 2, 10, 2, -2))
sketch4.addConstraint(Sketcher.Constraint("DistanceX", 1, 1, 1, 2, Q("10 mm")))
sketch4.addConstraint(Sketcher.Constraint("DistanceY", 0, 2, 0, 1, Q("6 mm")))
sketch4.addConstraint(Sketcher.Constraint("DistanceX", 0, 2, -1, 1, Q("95 mm")))
sketch4.addConstraint(Sketcher.Constraint("DistanceY", 4, 2, 0, 2, Q("95 mm")))
sketch4.setExpression("Constraints[38]", "Params.sketch4_width")
sketch4.setExpression("Constraints[39]", "Params.sketch4_height")
pocket3 = body.newObject("PartDesign::Pocket", "Pocket002")
pocket3.Profile = sketch4
pocket3.setExpression("Length", "Params.pocket3_length")

doc.recompute()
